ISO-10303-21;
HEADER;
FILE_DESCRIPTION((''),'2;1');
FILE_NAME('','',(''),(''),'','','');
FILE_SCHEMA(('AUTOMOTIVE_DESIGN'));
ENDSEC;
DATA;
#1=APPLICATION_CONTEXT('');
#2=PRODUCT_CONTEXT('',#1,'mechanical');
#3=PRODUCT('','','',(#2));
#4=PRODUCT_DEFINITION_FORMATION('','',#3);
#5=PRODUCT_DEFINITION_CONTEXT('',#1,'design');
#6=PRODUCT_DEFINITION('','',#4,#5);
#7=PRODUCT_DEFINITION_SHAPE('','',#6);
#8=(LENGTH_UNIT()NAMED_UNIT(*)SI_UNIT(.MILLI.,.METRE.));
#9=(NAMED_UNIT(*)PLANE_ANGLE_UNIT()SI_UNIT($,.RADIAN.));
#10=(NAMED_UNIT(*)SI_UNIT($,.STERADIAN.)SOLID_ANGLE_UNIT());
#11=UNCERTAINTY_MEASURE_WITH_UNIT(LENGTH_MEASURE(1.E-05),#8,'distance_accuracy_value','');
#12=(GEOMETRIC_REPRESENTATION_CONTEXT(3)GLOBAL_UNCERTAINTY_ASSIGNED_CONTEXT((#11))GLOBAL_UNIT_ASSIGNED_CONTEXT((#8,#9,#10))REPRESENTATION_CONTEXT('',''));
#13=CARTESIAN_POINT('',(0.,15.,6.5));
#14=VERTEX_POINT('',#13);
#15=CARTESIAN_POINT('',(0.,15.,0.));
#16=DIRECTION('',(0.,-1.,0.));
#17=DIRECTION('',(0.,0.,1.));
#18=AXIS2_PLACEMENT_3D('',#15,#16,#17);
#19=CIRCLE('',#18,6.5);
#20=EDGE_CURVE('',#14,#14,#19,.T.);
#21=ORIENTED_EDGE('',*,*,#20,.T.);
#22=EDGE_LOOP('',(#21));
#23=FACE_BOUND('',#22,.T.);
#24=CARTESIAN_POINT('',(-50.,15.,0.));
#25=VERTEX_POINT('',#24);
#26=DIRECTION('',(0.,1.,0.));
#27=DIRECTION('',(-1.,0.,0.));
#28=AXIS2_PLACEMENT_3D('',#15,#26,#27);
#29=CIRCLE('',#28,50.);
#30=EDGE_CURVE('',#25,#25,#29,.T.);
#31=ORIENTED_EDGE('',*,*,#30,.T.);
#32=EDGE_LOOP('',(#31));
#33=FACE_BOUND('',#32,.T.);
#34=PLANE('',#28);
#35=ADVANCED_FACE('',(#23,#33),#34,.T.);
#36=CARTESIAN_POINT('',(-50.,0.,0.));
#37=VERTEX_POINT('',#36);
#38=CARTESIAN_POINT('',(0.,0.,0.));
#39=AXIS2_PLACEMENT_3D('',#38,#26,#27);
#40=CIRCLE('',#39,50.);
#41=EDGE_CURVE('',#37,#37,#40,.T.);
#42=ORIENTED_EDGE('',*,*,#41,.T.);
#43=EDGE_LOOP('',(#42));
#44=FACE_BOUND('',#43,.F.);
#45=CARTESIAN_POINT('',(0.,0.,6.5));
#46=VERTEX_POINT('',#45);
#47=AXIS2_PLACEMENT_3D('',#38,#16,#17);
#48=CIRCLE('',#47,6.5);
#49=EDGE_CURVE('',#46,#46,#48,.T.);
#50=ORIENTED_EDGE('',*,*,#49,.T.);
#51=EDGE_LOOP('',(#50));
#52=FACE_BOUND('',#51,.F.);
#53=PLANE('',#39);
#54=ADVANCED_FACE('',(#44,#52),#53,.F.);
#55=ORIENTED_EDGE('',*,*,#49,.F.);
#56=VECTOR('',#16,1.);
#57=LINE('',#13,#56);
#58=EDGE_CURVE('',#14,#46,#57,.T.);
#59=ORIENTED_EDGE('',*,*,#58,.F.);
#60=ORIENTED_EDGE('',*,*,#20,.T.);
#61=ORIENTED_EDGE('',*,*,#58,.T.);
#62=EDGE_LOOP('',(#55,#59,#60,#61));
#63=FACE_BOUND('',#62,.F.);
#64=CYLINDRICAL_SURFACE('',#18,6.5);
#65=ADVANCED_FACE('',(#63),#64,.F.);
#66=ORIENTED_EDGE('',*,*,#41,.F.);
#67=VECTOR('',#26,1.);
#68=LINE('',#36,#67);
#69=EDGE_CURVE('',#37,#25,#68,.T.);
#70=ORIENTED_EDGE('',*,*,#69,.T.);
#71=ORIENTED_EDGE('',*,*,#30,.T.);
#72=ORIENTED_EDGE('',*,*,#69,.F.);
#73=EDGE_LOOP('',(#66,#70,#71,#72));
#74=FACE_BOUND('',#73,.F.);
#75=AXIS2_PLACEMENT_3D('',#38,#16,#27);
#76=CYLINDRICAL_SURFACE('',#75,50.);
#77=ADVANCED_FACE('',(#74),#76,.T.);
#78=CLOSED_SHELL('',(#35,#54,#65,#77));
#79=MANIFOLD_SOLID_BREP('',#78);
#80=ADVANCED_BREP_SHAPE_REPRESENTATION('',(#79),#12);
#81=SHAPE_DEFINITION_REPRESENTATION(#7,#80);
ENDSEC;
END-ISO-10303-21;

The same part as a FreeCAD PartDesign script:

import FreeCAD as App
import Part
import Sketcher
Q = App.Units.Quantity

doc = App.newDocument("Part")
params = doc.addObject("Spreadsheet::Sheet", "Params")
for row, (alias, value) in enumerate([
    ("sketch1_diameter", "100 mm"),
    ("pad1_length", "15 mm"),
    ("sketch2_diameter", "13 mm"),
    ("hole_diameter", "13 mm"),
], start=1):
    params.set(f"A{row}", alias)
    params.set(f"B{row}", "=" + value)
    params.setAlias(f"B{row}", alias)

body = doc.addObject("PartDesign::Body", "Body")

sketch1 = doc.addObject("Sketcher::SketchObject", "Sketch")
body.addObject(sketch1)
sketch1.AttachmentSupport = (doc.XZ_Plane, [""])
sketch1.MapMode = "FlatFace"
sketch1.addGeometry(Part.Circle(App.Vector(0, 0, 0), App.Vector(0, 0, 1), 50), False)
sketch1.addConstraint([
    Sketcher.Constraint("Coincident", 0, 3, -1, 1),
    Sketcher.Constraint("Diameter", 0, Q("100 mm")),
])
sketch1.setExpression("Constraints[1]", "Params.sketch1_diameter")
pad1 = doc.addObject("PartDesign::Pad", "Pad")
body.addObject(pad1)
pad1.Profile = sketch1
pad1.setExpression("Length", "Params.pad1_length")
pad1.Reversed = True

sketch2 = doc.addObject("Sketcher::SketchObject", "Sketch001")
body.addObject(sketch2)
sketch2.AttachmentSupport = (doc.XZ_Plane, [""])
sketch2.MapMode = "FlatFace"
sketch2.AttachmentOffset = App.Placement(App.Vector(0, 0, -15), App.Rotation())
sketch2.addGeometry(Part.Circle(App.Vector(0, 0, 0), App.Vector(0, 0, 1), 6), False)
sketch2.addConstraint([
    Sketcher.Constraint("Coincident", 0, 3, -1, 1),
    Sketcher.Constraint("Diameter", 0, Q("13 mm")),
])
sketch2.setExpression("Constraints[1]", "Params.sketch2_diameter")
doc.recompute()
hole = doc.addObject("PartDesign::Hole", "Hole")
body.addObject(hole)
hole.Profile = sketch2
hole.ThreadType = "None"
hole.setExpression("Diameter", "Params.hole_diameter")
hole.DepthType = "ThroughAll"
hole.Reversed = True

doc.recompute()
